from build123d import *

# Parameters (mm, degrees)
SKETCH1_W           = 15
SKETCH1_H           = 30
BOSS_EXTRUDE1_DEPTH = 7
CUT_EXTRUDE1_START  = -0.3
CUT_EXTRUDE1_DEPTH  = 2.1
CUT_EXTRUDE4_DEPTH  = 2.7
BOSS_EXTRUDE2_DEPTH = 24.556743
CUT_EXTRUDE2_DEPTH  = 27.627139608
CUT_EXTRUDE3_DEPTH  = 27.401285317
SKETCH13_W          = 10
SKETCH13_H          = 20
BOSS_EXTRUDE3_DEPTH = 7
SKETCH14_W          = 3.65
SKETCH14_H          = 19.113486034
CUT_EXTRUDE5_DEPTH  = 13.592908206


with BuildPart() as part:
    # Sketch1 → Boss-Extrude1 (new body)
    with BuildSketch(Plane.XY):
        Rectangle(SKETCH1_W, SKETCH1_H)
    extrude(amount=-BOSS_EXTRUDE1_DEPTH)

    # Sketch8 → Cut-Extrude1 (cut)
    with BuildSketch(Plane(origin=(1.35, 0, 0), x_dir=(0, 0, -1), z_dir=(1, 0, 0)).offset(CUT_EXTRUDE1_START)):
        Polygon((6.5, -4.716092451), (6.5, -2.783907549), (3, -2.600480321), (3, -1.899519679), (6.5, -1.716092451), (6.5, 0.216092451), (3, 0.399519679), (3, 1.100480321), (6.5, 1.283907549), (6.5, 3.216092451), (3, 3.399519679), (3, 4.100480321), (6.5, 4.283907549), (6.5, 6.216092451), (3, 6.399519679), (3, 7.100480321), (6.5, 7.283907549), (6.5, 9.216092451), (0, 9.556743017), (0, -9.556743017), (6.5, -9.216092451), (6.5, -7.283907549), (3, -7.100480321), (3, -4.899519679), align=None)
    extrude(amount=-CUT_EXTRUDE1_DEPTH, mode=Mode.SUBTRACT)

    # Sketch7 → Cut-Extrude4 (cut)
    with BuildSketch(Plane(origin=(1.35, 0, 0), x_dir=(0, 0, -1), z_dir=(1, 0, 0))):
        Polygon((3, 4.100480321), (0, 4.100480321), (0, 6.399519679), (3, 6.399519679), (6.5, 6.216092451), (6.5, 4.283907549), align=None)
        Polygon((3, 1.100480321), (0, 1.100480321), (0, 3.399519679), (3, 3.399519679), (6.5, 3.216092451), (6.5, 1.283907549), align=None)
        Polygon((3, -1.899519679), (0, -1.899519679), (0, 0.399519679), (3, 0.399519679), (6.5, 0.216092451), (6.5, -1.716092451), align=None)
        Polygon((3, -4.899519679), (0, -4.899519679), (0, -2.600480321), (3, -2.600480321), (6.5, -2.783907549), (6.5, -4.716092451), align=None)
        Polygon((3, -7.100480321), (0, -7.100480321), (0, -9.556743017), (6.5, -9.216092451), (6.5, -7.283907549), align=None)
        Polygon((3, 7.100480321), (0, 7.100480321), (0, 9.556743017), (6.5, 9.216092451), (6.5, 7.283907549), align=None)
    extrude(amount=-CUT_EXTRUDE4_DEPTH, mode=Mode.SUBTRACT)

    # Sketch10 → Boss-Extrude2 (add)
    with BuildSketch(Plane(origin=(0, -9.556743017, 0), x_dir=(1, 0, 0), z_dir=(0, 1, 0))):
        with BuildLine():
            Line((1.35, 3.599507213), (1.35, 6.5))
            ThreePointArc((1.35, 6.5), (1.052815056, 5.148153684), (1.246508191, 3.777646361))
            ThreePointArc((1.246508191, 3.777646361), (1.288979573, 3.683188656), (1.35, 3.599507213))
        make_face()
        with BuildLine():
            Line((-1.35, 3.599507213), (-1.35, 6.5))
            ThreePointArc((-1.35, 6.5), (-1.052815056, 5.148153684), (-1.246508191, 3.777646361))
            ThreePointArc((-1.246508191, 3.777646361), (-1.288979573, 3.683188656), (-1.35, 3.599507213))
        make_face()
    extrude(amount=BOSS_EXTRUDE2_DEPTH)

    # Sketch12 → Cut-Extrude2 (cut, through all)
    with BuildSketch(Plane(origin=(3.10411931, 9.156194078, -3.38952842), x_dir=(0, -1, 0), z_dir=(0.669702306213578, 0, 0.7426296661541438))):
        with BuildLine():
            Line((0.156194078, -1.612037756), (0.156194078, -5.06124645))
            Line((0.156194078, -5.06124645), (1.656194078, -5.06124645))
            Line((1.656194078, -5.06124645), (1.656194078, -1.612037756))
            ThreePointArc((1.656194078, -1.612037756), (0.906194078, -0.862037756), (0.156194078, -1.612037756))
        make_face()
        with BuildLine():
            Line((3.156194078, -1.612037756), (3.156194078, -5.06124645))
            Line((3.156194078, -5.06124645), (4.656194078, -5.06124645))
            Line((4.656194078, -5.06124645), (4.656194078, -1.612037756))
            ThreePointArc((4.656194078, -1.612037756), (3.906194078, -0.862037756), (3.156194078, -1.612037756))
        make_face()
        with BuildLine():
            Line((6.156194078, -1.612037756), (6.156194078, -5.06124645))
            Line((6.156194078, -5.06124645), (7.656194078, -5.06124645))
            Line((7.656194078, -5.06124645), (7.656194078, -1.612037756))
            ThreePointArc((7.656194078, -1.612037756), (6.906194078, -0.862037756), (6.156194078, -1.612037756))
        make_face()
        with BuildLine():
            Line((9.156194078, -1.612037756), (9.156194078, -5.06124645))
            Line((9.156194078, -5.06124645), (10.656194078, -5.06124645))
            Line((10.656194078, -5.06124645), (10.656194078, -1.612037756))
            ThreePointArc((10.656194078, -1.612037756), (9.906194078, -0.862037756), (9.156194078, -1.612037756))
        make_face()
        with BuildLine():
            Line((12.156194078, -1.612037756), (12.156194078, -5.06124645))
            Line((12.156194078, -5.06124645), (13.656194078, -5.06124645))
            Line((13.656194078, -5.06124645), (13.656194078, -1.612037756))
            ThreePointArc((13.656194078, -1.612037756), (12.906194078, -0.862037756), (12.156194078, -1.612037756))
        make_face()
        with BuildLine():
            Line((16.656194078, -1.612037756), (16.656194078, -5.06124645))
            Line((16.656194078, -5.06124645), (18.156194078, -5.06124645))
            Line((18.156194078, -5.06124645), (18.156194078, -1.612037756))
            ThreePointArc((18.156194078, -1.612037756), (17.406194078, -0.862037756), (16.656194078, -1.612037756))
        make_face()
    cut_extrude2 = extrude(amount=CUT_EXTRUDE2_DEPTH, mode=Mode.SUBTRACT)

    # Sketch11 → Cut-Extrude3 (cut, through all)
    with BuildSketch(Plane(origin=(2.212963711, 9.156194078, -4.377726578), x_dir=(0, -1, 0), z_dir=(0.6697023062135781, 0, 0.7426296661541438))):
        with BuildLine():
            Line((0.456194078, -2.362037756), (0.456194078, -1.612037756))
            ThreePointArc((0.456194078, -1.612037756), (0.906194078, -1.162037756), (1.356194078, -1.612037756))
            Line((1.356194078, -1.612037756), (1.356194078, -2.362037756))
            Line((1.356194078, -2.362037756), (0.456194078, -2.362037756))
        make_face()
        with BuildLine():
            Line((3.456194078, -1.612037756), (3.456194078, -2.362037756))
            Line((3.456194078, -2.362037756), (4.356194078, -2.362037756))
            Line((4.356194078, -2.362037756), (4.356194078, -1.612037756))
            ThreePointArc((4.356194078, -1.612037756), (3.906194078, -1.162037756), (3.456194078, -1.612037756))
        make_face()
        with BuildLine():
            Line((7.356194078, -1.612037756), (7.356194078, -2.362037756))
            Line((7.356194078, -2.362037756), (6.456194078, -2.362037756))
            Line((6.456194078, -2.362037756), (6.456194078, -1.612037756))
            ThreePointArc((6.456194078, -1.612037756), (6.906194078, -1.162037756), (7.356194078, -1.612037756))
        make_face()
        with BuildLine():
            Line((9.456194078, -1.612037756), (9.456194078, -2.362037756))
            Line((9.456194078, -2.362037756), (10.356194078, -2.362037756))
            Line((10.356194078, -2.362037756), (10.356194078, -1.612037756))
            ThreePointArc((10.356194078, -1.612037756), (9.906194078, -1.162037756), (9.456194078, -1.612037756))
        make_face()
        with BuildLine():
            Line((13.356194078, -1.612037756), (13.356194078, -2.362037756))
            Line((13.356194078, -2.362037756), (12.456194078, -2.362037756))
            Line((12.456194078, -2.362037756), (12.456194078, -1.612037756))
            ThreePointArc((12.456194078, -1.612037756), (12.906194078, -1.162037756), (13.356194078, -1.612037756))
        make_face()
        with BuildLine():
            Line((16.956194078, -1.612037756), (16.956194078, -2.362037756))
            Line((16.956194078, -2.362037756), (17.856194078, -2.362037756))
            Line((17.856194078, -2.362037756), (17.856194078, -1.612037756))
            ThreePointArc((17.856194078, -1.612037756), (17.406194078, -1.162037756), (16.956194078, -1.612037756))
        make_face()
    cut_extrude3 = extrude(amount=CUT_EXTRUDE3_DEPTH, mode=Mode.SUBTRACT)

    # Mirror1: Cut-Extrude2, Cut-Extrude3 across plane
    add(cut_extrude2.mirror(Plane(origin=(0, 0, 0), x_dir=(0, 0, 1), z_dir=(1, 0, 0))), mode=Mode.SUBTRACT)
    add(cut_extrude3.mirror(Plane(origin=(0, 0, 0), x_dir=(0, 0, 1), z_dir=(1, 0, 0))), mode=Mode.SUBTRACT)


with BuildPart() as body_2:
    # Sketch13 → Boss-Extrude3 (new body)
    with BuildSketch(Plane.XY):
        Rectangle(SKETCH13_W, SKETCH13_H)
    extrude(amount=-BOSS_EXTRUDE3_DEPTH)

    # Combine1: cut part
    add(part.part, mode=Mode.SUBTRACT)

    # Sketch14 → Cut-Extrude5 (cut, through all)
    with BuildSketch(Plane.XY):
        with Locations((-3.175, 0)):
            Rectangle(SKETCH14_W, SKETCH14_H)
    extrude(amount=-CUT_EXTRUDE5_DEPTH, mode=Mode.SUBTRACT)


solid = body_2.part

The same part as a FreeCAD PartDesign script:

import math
import FreeCAD as App
import Part
import Sketcher

V = App.Vector
Q = App.Units.Quantity


def add_polygon(sketch, points):
    """Adds a closed chain of lines whose ends are joined by coincident constraints."""
    first, n = sketch.GeometryCount, len(points)
    for a, b in zip(points, points[1:] + points[:1]):
        sketch.addGeometry(Part.LineSegment(App.Vector(*a, 0), App.Vector(*b, 0)), False)
    for i in range(n):
        sketch.addConstraint(Sketcher.Constraint("Coincident", first + i, 2, first + (i + 1) % n, 1))

doc = App.newDocument("Part")
body = doc.addObject("PartDesign::Body", "Body")

sketch1 = body.newObject("Sketcher::SketchObject", "Sketch")
sketch1.AttachmentSupport = (doc.getObject("XY_Plane"), [""])
sketch1.MapMode = "FlatFace"
add_polygon(sketch1, [(-8, 15), (-8, -15), (8, -15), (8, 15)])
sketch1.addConstraint(Sketcher.Constraint("Vertical", 0))
sketch1.addConstraint(Sketcher.Constraint("Horizontal", 1))
sketch1.addConstraint(Sketcher.Constraint("Vertical", 2))
sketch1.addConstraint(Sketcher.Constraint("Horizontal", 3))
sketch1.addConstraint(Sketcher.Constraint("Symmetric", 0, 2, 2, 2, -1, 1))
sketch1.addConstraint(Sketcher.Constraint("DistanceX", 1, 1, 1, 2, Q("15 mm")))
sketch1.addConstraint(Sketcher.Constraint("DistanceY", 0, 2, 0, 1, Q("30 mm")))
pad1 = body.newObject("PartDesign::Pad", "Pad")
pad1.Profile = sketch1
pad1.Length = 7
pad1.Reversed = True

sketch2 = body.newObject("Sketcher::SketchObject", "Sketch001")
sketch2.AttachmentSupport = (doc.getObject("YZ_Plane"), [""])
sketch2.MapMode = "FlatFace"
sketch2.AttachmentOffset = App.Placement(V(0, 0, 1.05), App.Rotation())
add_polygon(sketch2, [(-4.7, -6.5), (-2.8, -6.5), (-2.6, -3), (-1.9, -3), (-1.7, -6.5), (0.2, -6.5), (0.4, -3), (1.1, -3), (1.3, -6.5), (3.2, -6.5), (3.4, -3), (4.1, -3), (4.3, -6.5), (6.2, -6.5), (6.4, -3), (7.1, -3), (7.3, -6.5), (9.2, -6.5), (9.6, 0), (-9.6, 0), (-9.2, -6.5), (-7.3, -6.5), (-7.1, -3), (-4.9, -3)])
sketch2.addConstraint(Sketcher.Constraint("Horizontal", 0))
sketch2.addConstraint(Sketcher.Constraint("Horizontal", 2))
sketch2.addConstraint(Sketcher.Constraint("Horizontal", 4))
sketch2.addConstraint(Sketcher.Constraint("Horizontal", 6))
sketch2.addConstraint(Sketcher.Constraint("Horizontal", 8))
sketch2.addConstraint(Sketcher.Constraint("Horizontal", 10))
sketch2.addConstraint(Sketcher.Constraint("Horizontal", 12))
sketch2.addConstraint(Sketcher.Constraint("Horizontal", 14))
sketch2.addConstraint(Sketcher.Constraint("Horizontal", 16))
sketch2.addConstraint(Sketcher.Constraint("Horizontal", 18))
sketch2.addConstraint(Sketcher.Constraint("Horizontal", 20))
sketch2.addConstraint(Sketcher.Constraint("Horizontal", 22))
sketch2.addConstraint(Sketcher.Constraint("Symmetric", 17, 2, 18, 2, -1, 1))
sketch2.addConstraint(Sketcher.Constraint("Symmetric", 16, 2, 19, 2, -2))
sketch2.addConstraint(Sketcher.Constraint("Symmetric", 14, 2, 21, 2, -2))
sketch2.addConstraint(Sketcher.Constraint("Parallel", 1, 5))
sketch2.addConstraint(Sketcher.Constraint("Parallel", 3, 7))
sketch2.addConstraint(Sketcher.Constraint("Parallel", 5, 9))
sketch2.addConstraint(Sketcher.Constraint("Parallel", 7, 11))
sketch2.addConstraint(Sketcher.Constraint("Parallel", 9, 13))
sketch2.addConstraint(Sketcher.Constraint("Parallel", 11, 15))
sketch2.addConstraint(Sketcher.Constraint("Parallel", 13, 17))
sketch2.addConstraint(Sketcher.Constraint("Parallel", 15, 19))
sketch2.addConstraint(Sketcher.Constraint("Parallel", 17, 21))
sketch2.addConstraint(Sketcher.Constraint("Parallel", 19, 23))
sketch2.addConstraint(Sketcher.Constraint("Horizontal", 0, 2, 3, 2))
sketch2.addConstraint(Sketcher.Constraint("Horizontal", 2, 2, 5, 2))
sketch2.addConstraint(Sketcher.Constraint("Horizontal", 4, 2, 7, 2))
sketch2.addConstraint(Sketcher.Constraint("Horizontal", 6, 2, 9, 2))
sketch2.addConstraint(Sketcher.Constraint("Horizontal", 8, 2, 11, 2))
sketch2.addConstraint(Sketcher.Constraint("Horizontal", 10, 2, 13, 2))
sketch2.addConstraint(Sketcher.Constraint("Horizontal", 12, 2, 15, 2))
sketch2.addConstraint(Sketcher.Constraint("Equal", 0, 4))
sketch2.addConstraint(Sketcher.Constraint("Equal", 2, 6))
sketch2.addConstraint(Sketcher.Constraint("Equal", 4, 8))
sketch2.addConstraint(Sketcher.Constraint("Equal", 6, 10))
sketch2.addConstraint(Sketcher.Constraint("Equal", 8, 12))
sketch2.addConstraint(Sketcher.Constraint("Equal", 10, 14))
sketch2.addConstraint(Sketcher.Constraint("Equal", 12, 16))
sketch2.addConstraint(Sketcher.Constraint("Angle", 1, Q("87 deg")))
sketch2.addConstraint(Sketcher.Constraint("DistanceY", 1, 2, -1, 1, Q("3 mm")))
sketch2.addConstraint(Sketcher.Constraint("DistanceX", 0, 2, 4, 2, Q("3 mm")))
sketch2.addConstraint(Sketcher.Constraint("DistanceY", 0, 2, -1, 1, Q("6.5 mm")))
sketch2.addConstraint(Sketcher.Constraint("DistanceX", 19, 2, 3, 2, Q("7.5 mm")))
sketch2.addConstraint(Sketcher.Constraint("DistanceX", 2, 1, 2, 2, Q("0.700961 mm")))
pocket1 = body.newObject("PartDesign::Pocket", "Pocket")
pocket1.Profile = sketch2
pocket1.Length = 2.1

sketch3 = body.newObject("Sketcher::SketchObject", "Sketch002")
sketch3.AttachmentSupport = (doc.getObject("YZ_Plane"), [""])
sketch3.MapMode = "FlatFace"
sketch3.AttachmentOffset = App.Placement(V(0, 0, 1.35), App.Rotation())
add_polygon(sketch3, [(4.1, 0), (4.1, -3), (4.3, -6.5), (6.2, -6.5), (6.4, -3), (6.4, 0)])
add_polygon(sketch3, [(1.1, 0), (1.1, -3), (1.3, -6.5), (3.2, -6.5), (3.4, -3), (3.4, 0)])
add_polygon(sketch3, [(-1.9, 0), (-1.9, -3), (-1.7, -6.5), (0.2, -6.5), (0.4, -3), (0.4, 0)])
add_polygon(sketch3, [(-4.9, 0), (-4.9, -3), (-4.7, -6.5), (-2.8, -6.5), (-2.6, -3), (-2.6, 0)])
add_polygon(sketch3, [(-7.1, -3), (-7.1, 0), (-9.6, 0), (-9.2, -6.5), (-7.3, -6.5)])
add_polygon(sketch3, [(7.1, 0), (7.1, -3), (7.3, -6.5), (9.2, -6.5), (9.6, 0)])
sketch3.addConstraint(Sketcher.Constraint("Vertical", 0))
sketch3.addConstraint(Sketcher.Constraint("Horizontal", 2))
sketch3.addConstraint(Sketcher.Constraint("Vertical", 4))
sketch3.addConstraint(Sketcher.Constraint("Horizontal", 5))
sketch3.addConstraint(Sketcher.Constraint("Vertical", 6))
sketch3.addConstraint(Sketcher.Constraint("Horizontal", 8))
sketch3.addConstraint(Sketcher.Constraint("Vertical", 10))
sketch3.addConstraint(Sketcher.Constraint("Horizontal", 11))
sketch3.addConstraint(Sketcher.Constraint("Vertical", 12))
sketch3.addConstraint(Sketcher.Constraint("Horizontal", 14))
sketch3.addConstraint(Sketcher.Constraint("Vertical", 16))
sketch3.addConstraint(Sketcher.Constraint("Horizontal", 17))
sketch3.addConstraint(Sketcher.Constraint("Vertical", 18))
sketch3.addConstraint(Sketcher.Constraint("Horizontal", 20))
sketch3.addConstraint(Sketcher.Constraint("Vertical", 22))
sketch3.addConstraint(Sketcher.Constraint("Horizontal", 23))
sketch3.addConstraint(Sketcher.Constraint("Vertical", 24))
sketch3.addConstraint(Sketcher.Constraint("Horizontal", 25))
sketch3.addConstraint(Sketcher.Constraint("Horizontal", 27))
sketch3.addConstraint(Sketcher.Constraint("Vertical", 29))
sketch3.addConstraint(Sketcher.Constraint("Horizontal", 31))
sketch3.addConstraint(Sketcher.Constraint("Horizontal", 33))
sketch3.addConstraint(Sketcher.Constraint("Symmetric", 25, 2, 32, 2, -1, 1))
sketch3.addConstraint(Sketcher.Constraint("Symmetric", 28, 2, 29, 2, -2))
sketch3.addConstraint(Sketcher.Constraint("Symmetric", 27, 2, 30, 2, -2))
sketch3.addConstraint(Sketcher.Constraint("PointOnObject", 4, 2, -1))
sketch3.addConstraint(Sketcher.Constraint("PointOnObject", 10, 2, -1))
sketch3.addConstraint(Sketcher.Constraint("PointOnObject", 16, 2, -1))
sketch3.addConstraint(Sketcher.Constraint("PointOnObject", 22, 2, -1))
sketch3.addConstraint(Sketcher.Constraint("PointOnObject", 24, 2, -1))
sketch3.addConstraint(Sketcher.Constraint("Parallel", 1, 7))
sketch3.addConstraint(Sketcher.Constraint("Parallel", 3, 9))
sketch3.addConstraint(Sketcher.Constraint("Parallel", 7, 13))
sketch3.addConstraint(Sketcher.Constraint("Parallel", 9, 15))
sketch3.addConstraint(Sketcher.Constraint("Parallel", 13, 19))
sketch3.addConstraint(Sketcher.Constraint("Parallel", 15, 21))
sketch3.addConstraint(Sketcher.Constraint("Parallel", 19, 26))
sketch3.addConstraint(Sketcher.Constraint("Parallel", 21, 28))
sketch3.addConstraint(Sketcher.Constraint("Parallel", 26, 30))
sketch3.addConstraint(Sketcher.Constraint("Parallel", 28, 32))
sketch3.addConstraint(Sketcher.Constraint("Horizontal", 0, 2, 3, 2))
sketch3.addConstraint(Sketcher.Constraint("Horizontal", 3, 2, 6, 2))
sketch3.addConstraint(Sketcher.Constraint("Horizontal", 2, 2, 7, 2))
sketch3.addConstraint(Sketcher.Constraint("Horizontal", 6, 2, 9, 2))
sketch3.addConstraint(Sketcher.Constraint("Horizontal", 9, 2, 12, 2))
sketch3.addConstraint(Sketcher.Constraint("Horizontal", 8, 2, 13, 2))
sketch3.addConstraint(Sketcher.Constraint("Horizontal", 12, 2, 15, 2))
sketch3.addConstraint(Sketcher.Constraint("Horizontal", 15, 2, 18, 2))
sketch3.addConstraint(Sketcher.Constraint("Horizontal", 14, 2, 19, 2))
sketch3.addConstraint(Sketcher.Constraint("Horizontal", 18, 2, 21, 2))
sketch3.addConstraint(Sketcher.Constraint("Horizontal", 20, 2, 26, 2))
sketch3.addConstraint(Sketcher.Constraint("Horizontal", 21, 2, 28, 2))
sketch3.addConstraint(Sketcher.Constraint("Equal", 2, 8))
sketch3.addConstraint(Sketcher.Constraint("Equal", 8, 14))
sketch3.addConstraint(Sketcher.Constraint("Equal", 14, 20))
sketch3.addConstraint(Sketcher.Constraint("Equal", 20, 27))
sketch3.addConstraint(Sketcher.Constraint("DistanceY", 0, 2, 0, 1, Q("3 mm")))
sketch3.addConstraint(Sketcher.Constraint("Angle", 1, Q("-87 deg")))
sketch3.addConstraint(Sketcher.Constraint("DistanceX", 6, 2, 0, 2, Q("3 mm")))
sketch3.addConstraint(Sketcher.Constraint("DistanceX", 12, 2, 6, 2, Q("3 mm")))
sketch3.addConstraint(Sketcher.Constraint("DistanceX", 18, 2, 12, 2, Q("3 mm")))
sketch3.addConstraint(Sketcher.Constraint("DistanceX", 0, 2, 29, 2, Q("3 mm")))
sketch3.addConstraint(Sketcher.Constraint("DistanceY", 1, 2, -1, 1, Q("6.5 mm")))
sketch3.addConstraint(Sketcher.Constraint("DistanceX", 24, 2, 22, 2, Q("4.5 mm")))
sketch3.addConstraint(Sketcher.Constraint("DistanceX", 5, 2, 5, 1, Q("2.299039 mm")))
pocket2 = body.newObject("PartDesign::Pocket", "Pocket001")
pocket2.Profile = sketch3
pocket2.Length = 2.7

sketch4 = body.newObject("Sketcher::SketchObject", "Sketch003")
sketch4.AttachmentSupport = (doc.getObject("XZ_Plane"), [""])
sketch4.MapMode = "FlatFace"
sketch4.AttachmentOffset = App.Placement(V(0, 0, 9.556743), App.Rotation())
sketch4.addGeometry(Part.LineSegment(V(1.35, -3.6, 0), V(1.35, -6.5, 0)), False)
sketch4.addGeometry(Part.ArcOfCircle(Part.Circle(V(4.95, -5, 0), V(0, 0, 1), 3.9), math.radians(162), math.radians(203)), False)
sketch4.addGeometry(Part.ArcOfCircle(Part.Circle(V(1.72, -3.93, 0), V(0, 0, 1), 0.5), math.radians(138), math.radians(162)), False)
sketch4.addGeometry(Part.LineSegment(V(-1.35, -6.5, 0), V(-1.35, -3.6, 0)), False)
sketch4.addGeometry(Part.ArcOfCircle(Part.Circle(V(-1.72, -3.93, 0), V(0, 0, 1), 0.5), math.radians(18), math.radians(42)), False)
sketch4.addGeometry(Part.ArcOfCircle(Part.Circle(V(-4.95, -5, 0), V(0, 0, 1), 3.9), math.radians(-23), math.radians(18)), False)
sketch4.addConstraint(Sketcher.Constraint("Coincident", 0, 2, 1, 2))
sketch4.addConstraint(Sketcher.Constraint("Tangent", 1, 1, 2, 2))
sketch4.addConstraint(Sketcher.Constraint("Coincident", 2, 1, 0, 1))
sketch4.addConstraint(Sketcher.Constraint("Coincident", 3, 2, 4, 2))
sketch4.addConstraint(Sketcher.Constraint("Tangent", 4, 1, 5, 2))
sketch4.addConstraint(Sketcher.Constraint("Coincident", 5, 1, 3, 1))
sketch4.addConstraint(Sketcher.Constraint("Vertical", 0))
sketch4.addConstraint(Sketcher.Constraint("Vertical", 3))
sketch4.addConstraint(Sketcher.Constraint("Equal", 2, 4))
sketch4.addConstraint(Sketcher.Constraint("Equal", 1, 5))
sketch4.addConstraint(Sketcher.Constraint("Symmetric", 2, 3, 4, 3, -2))
sketch4.addConstraint(Sketcher.Constraint("Symmetric", 0, 2, 5, 1, -2))
sketch4.addConstraint(Sketcher.Constraint("Radius", 1, Q("3.9 mm")))
sketch4.addConstraint(Sketcher.Constraint("Radius", 2, Q("0.5 mm")))
sketch4.addConstraint(Sketcher.Constraint("DistanceY", 1, 3, -1, 1, Q("5 mm")))
sketch4.addConstraint(Sketcher.Constraint("DistanceY", 0, 2, -1, 1, Q("6.5 mm")))
sketch4.addConstraint(Sketcher.Constraint("DistanceX", 5, 3, 1, 3, Q("9.9 mm")))
sketch4.addConstraint(Sketcher.Constraint("DistanceY", 0, 2, 0, 1, Q("2.900493 mm")))
pad2 = body.newObject("PartDesign::Pad", "Pad001")
pad2.Profile = sketch4
pad2.Length = 24.556743
pad2.Reversed = True

sketch5 = body.newObject("Sketcher::SketchObject", "Sketch004")
sketch5.Placement = App.Placement(V(3.104119, 9.156194, -3.389528), App.Rotation(V(0, -1, 0), V(0.742629666, 0, -0.669702306), V(0.669702306, 0, 0.742629666), "ZXY"))
sketch5.addGeometry(Part.LineSegment(V(0.2, -1.6, 0), V(0.2, -5.1, 0)), False)
sketch5.addGeometry(Part.LineSegment(V(0.2, -5.1, 0), V(1.7, -5.1, 0)), False)
sketch5.addGeometry(Part.LineSegment(V(1.7, -5.1, 0), V(1.7, -1.6, 0)), False)
sketch5.addGeometry(Part.ArcOfCircle(Part.Circle(V(0.9, -1.6, 0), V(0, 0, 1), 0.8), math.radians(0), math.radians(180)), False)
sketch5.addGeometry(Part.LineSegment(V(3.2, -1.6, 0), V(3.2, -5.1, 0)), False)
sketch5.addGeometry(Part.LineSegment(V(3.2, -5.1, 0), V(4.7, -5.1, 0)), False)
sketch5.addGeometry(Part.LineSegment(V(4.7, -5.1, 0), V(4.7, -1.6, 0)), False)
sketch5.addGeometry(Part.ArcOfCircle(Part.Circle(V(3.9, -1.6, 0), V(0, 0, 1), 0.8), math.radians(0), math.radians(180)), False)
sketch5.addGeometry(Part.LineSegment(V(6.2, -1.6, 0), V(6.2, -5.1, 0)), False)
sketch5.addGeometry(Part.LineSegment(V(6.2, -5.1, 0), V(7.7, -5.1, 0)), False)
sketch5.addGeometry(Part.LineSegment(V(7.7, -5.1, 0), V(7.7, -1.6, 0)), False)
sketch5.addGeometry(Part.ArcOfCircle(Part.Circle(V(6.9, -1.6, 0), V(0, 0, 1), 0.8), math.radians(0), math.radians(180)), False)
sketch5.addGeometry(Part.LineSegment(V(9.2, -1.6, 0), V(9.2, -5.1, 0)), False)
sketch5.addGeometry(Part.LineSegment(V(9.2, -5.1, 0), V(10.7, -5.1, 0)), False)
sketch5.addGeometry(Part.LineSegment(V(10.7, -5.1, 0), V(10.7, -1.6, 0)), False)
sketch5.addGeometry(Part.ArcOfCircle(Part.Circle(V(9.9, -1.6, 0), V(0, 0, 1), 0.8), math.radians(0), math.radians(180)), False)
sketch5.addGeometry(Part.LineSegment(V(12.2, -1.6, 0), V(12.2, -5.1, 0)), False)
sketch5.addGeometry(Part.LineSegment(V(12.2, -5.1, 0), V(13.7, -5.1, 0)), False)
sketch5.addGeometry(Part.LineSegment(V(13.7, -5.1, 0), V(13.7, -1.6, 0)), False)
sketch5.addGeometry(Part.ArcOfCircle(Part.Circle(V(12.9, -1.6, 0), V(0, 0, 1), 0.8), math.radians(0), math.radians(180)), False)
sketch5.addGeometry(Part.LineSegment(V(16.7, -1.6, 0), V(16.7, -5.1, 0)), False)
sketch5.addGeometry(Part.LineSegment(V(16.7, -5.1, 0), V(18.2, -5.1, 0)), False)
sketch5.addGeometry(Part.LineSegment(V(18.2, -5.1, 0), V(18.2, -1.6, 0)), False)
sketch5.addGeometry(Part.ArcOfCircle(Part.Circle(V(17.4, -1.6, 0), V(0, 0, 1), 0.8), math.radians(0), math.radians(180)), False)
sketch5.addConstraint(Sketcher.Constraint("Coincident", 0, 2, 1, 1))
sketch5.addConstraint(Sketcher.Constraint("Coincident", 1, 2, 2, 1))
sketch5.addConstraint(Sketcher.Constraint("Tangent", 2, 2, 3, 1))
sketch5.addConstraint(Sketcher.Constraint("Tangent", 3, 2, 0, 1))
sketch5.addConstraint(Sketcher.Constraint("Coincident", 4, 2, 5, 1))
sketch5.addConstraint(Sketcher.Constraint("Coincident", 5, 2, 6, 1))
sketch5.addConstraint(Sketcher.Constraint("Tangent", 6, 2, 7, 1))
sketch5.addConstraint(Sketcher.Constraint("Tangent", 7, 2, 4, 1))
sketch5.addConstraint(Sketcher.Constraint("Coincident", 8, 2, 9, 1))
sketch5.addConstraint(Sketcher.Constraint("Coincident", 9, 2, 10, 1))
sketch5.addConstraint(Sketcher.Constraint("Tangent", 10, 2, 11, 1))
sketch5.addConstraint(Sketcher.Constraint("Tangent", 11, 2, 8, 1))
sketch5.addConstraint(Sketcher.Constraint("Coincident", 12, 2, 13, 1))
sketch5.addConstraint(Sketcher.Constraint("Coincident", 13, 2, 14, 1))
sketch5.addConstraint(Sketcher.Constraint("Tangent", 14, 2, 15, 1))
sketch5.addConstraint(Sketcher.Constraint("Tangent", 15, 2, 12, 1))
sketch5.addConstraint(Sketcher.Constraint("Coincident", 16, 2, 17, 1))
sketch5.addConstraint(Sketcher.Constraint("Coincident", 17, 2, 18, 1))
sketch5.addConstraint(Sketcher.Constraint("Tangent", 18, 2, 19, 1))
sketch5.addConstraint(Sketcher.Constraint("Tangent", 19, 2, 16, 1))
sketch5.addConstraint(Sketcher.Constraint("Coincident", 20, 2, 21, 1))
sketch5.addConstraint(Sketcher.Constraint("Coincident", 21, 2, 22, 1))
sketch5.addConstraint(Sketcher.Constraint("Tangent", 22, 2, 23, 1))
sketch5.addConstraint(Sketcher.Constraint("Tangent", 23, 2, 20, 1))
sketch5.addConstraint(Sketcher.Constraint("Vertical", 0))
sketch5.addConstraint(Sketcher.Constraint("Horizontal", 1))
sketch5.addConstraint(Sketcher.Constraint("Vertical", 2))
sketch5.addConstraint(Sketcher.Constraint("Vertical", 4))
sketch5.addConstraint(Sketcher.Constraint("Horizontal", 5))
sketch5.addConstraint(Sketcher.Constraint("Vertical", 6))
sketch5.addConstraint(Sketcher.Constraint("Vertical", 8))
sketch5.addConstraint(Sketcher.Constraint("Horizontal", 9))
sketch5.addConstraint(Sketcher.Constraint("Vertical", 10))
sketch5.addConstraint(Sketcher.Constraint("Vertical", 12))
sketch5.addConstraint(Sketcher.Constraint("Horizontal", 13))
sketch5.addConstraint(Sketcher.Constraint("Vertical", 14))
sketch5.addConstraint(Sketcher.Constraint("Vertical", 16))
sketch5.addConstraint(Sketcher.Constraint("Horizontal", 17))
sketch5.addConstraint(Sketcher.Constraint("Vertical", 18))
sketch5.addConstraint(Sketcher.Constraint("Vertical", 20))
sketch5.addConstraint(Sketcher.Constraint("Horizontal", 21))
sketch5.addConstraint(Sketcher.Constraint("Vertical", 22))
sketch5.addConstraint(Sketcher.Constraint("Equal", 3, 7))
sketch5.addConstraint(Sketcher.Constraint("Equal", 7, 11))
sketch5.addConstraint(Sketcher.Constraint("Equal", 11, 15))
sketch5.addConstraint(Sketcher.Constraint("Equal", 15, 19))
sketch5.addConstraint(Sketcher.Constraint("Equal", 19, 23))
sketch5.addConstraint(Sketcher.Constraint("Horizontal", 3, 3, 7, 3))
sketch5.addConstraint(Sketcher.Constraint("Horizontal", 7, 3, 11, 3))
sketch5.addConstraint(Sketcher.Constraint("Horizontal", 11, 3, 15, 3))
sketch5.addConstraint(Sketcher.Constraint("Horizontal", 15, 3, 19, 3))
sketch5.addConstraint(Sketcher.Constraint("Horizontal", 19, 3, 23, 3))
sketch5.addConstraint(Sketcher.Constraint("Horizontal", 1, 2, 4, 2))
sketch5.addConstraint(Sketcher.Constraint("Horizontal", 5, 2, 8, 2))
sketch5.addConstraint(Sketcher.Constraint("Horizontal", 9, 2, 12, 2))
sketch5.addConstraint(Sketcher.Constraint("Horizontal", 13, 2, 16, 2))
sketch5.addConstraint(Sketcher.Constraint("Horizontal", 17, 2, 20, 2))
sketch5.addConstraint(Sketcher.Constraint("Radius", 3, Q("0.75 mm")))
sketch5.addConstraint(Sketcher.Constraint("DistanceX", 3, 3, 7, 3, Q("3 mm")))
sketch5.addConstraint(Sketcher.Constraint("DistanceX", 7, 3, 11, 3, Q("3 mm")))
sketch5.addConstraint(Sketcher.Constraint("DistanceX", 11, 3, 15, 3, Q("3 mm")))
sketch5.addConstraint(Sketcher.Constraint("DistanceX", 15, 3, 19, 3, Q("3 mm")))
sketch5.addConstraint(Sketcher.Constraint("DistanceX", 17, 2, 20, 2, Q("3 mm")))
sketch5.addConstraint(Sketcher.Constraint("DistanceY", 0, 2, 0, 1, Q("3.449209 mm")))
sketch5.addConstraint(Sketcher.Constraint("DistanceX", -1, 1, 3, 3, Q("0.906194 mm")))
sketch5.addConstraint(Sketcher.Constraint("DistanceY", 3, 3, -1, 1, Q("1.612038 mm")))
pocket3 = body.newObject("PartDesign::Pocket", "Pocket002")
pocket3.Profile = sketch5
pocket3.Type = "ThroughAll"
pocket3.Reversed = True

sketch6 = body.newObject("Sketcher::SketchObject", "Sketch005")
sketch6.Placement = App.Placement(V(2.212964, 9.156194, -4.377727), App.Rotation(V(0, -1, 0), V(0.742629666, 0, -0.669702306), V(0.669702306, 0, 0.742629666), "ZXY"))
sketch6.addGeometry(Part.LineSegment(V(0.46, -1.61, 0), V(0.46, -2.36, 0)), False)
sketch6.addGeometry(Part.LineSegment(V(0.46, -2.36, 0), V(1.36, -2.36, 0)), False)
sketch6.addGeometry(Part.LineSegment(V(1.36, -2.36, 0), V(1.36, -1.61, 0)), False)
sketch6.addGeometry(Part.ArcOfCircle(Part.Circle(V(0.91, -1.61, 0), V(0, 0, 1), 0.45), math.radians(0), math.radians(180)), False)
sketch6.addGeometry(Part.LineSegment(V(3.46, -1.61, 0), V(3.46, -2.36, 0)), False)
sketch6.addGeometry(Part.LineSegment(V(3.46, -2.36, 0), V(4.36, -2.36, 0)), False)
sketch6.addGeometry(Part.LineSegment(V(4.36, -2.36, 0), V(4.36, -1.61, 0)), False)
sketch6.addGeometry(Part.ArcOfCircle(Part.Circle(V(3.91, -1.61, 0), V(0, 0, 1), 0.45), math.radians(0), math.radians(180)), False)
sketch6.addGeometry(Part.LineSegment(V(7.36, -2.36, 0), V(7.36, -1.61, 0)), False)
sketch6.addGeometry(Part.ArcOfCircle(Part.Circle(V(6.91, -1.61, 0), V(0, 0, 1), 0.45), math.radians(0), math.radians(180)), False)
sketch6.addGeometry(Part.LineSegment(V(6.46, -1.61, 0), V(6.46, -2.36, 0)), False)
sketch6.addGeometry(Part.LineSegment(V(6.46, -2.36, 0), V(7.36, -2.36, 0)), False)
sketch6.addGeometry(Part.LineSegment(V(9.46, -1.61, 0), V(9.46, -2.36, 0)), False)
sketch6.addGeometry(Part.LineSegment(V(9.46, -2.36, 0), V(10.36, -2.36, 0)), False)
sketch6.addGeometry(Part.LineSegment(V(10.36, -2.36, 0), V(10.36, -1.61, 0)), False)
sketch6.addGeometry(Part.ArcOfCircle(Part.Circle(V(9.91, -1.61, 0), V(0, 0, 1), 0.45), math.radians(0), math.radians(180)), False)
sketch6.addGeometry(Part.LineSegment(V(13.36, -2.36, 0), V(13.36, -1.61, 0)), False)
sketch6.addGeometry(Part.ArcOfCircle(Part.Circle(V(12.91, -1.61, 0), V(0, 0, 1), 0.45), math.radians(0), math.radians(180)), False)
sketch6.addGeometry(Part.LineSegment(V(12.46, -1.61, 0), V(12.46, -2.36, 0)), False)
sketch6.addGeometry(Part.LineSegment(V(12.46, -2.36, 0), V(13.36, -2.36, 0)), False)
sketch6.addGeometry(Part.LineSegment(V(16.96, -1.61, 0), V(16.96, -2.36, 0)), False)
sketch6.addGeometry(Part.LineSegment(V(16.96, -2.36, 0), V(17.86, -2.36, 0)), False)
sketch6.addGeometry(Part.LineSegment(V(17.86, -2.36, 0), V(17.86, -1.61, 0)), False)
sketch6.addGeometry(Part.ArcOfCircle(Part.Circle(V(17.41, -1.61, 0), V(0, 0, 1), 0.45), math.radians(0), math.radians(180)), False)
sketch6.addConstraint(Sketcher.Constraint("Coincident", 0, 2, 1, 1))
sketch6.addConstraint(Sketcher.Constraint("Coincident", 1, 2, 2, 1))
sketch6.addConstraint(Sketcher.Constraint("Tangent", 2, 2, 3, 1))
sketch6.addConstraint(Sketcher.Constraint("Tangent", 3, 2, 0, 1))
sketch6.addConstraint(Sketcher.Constraint("Coincident", 4, 2, 5, 1))
sketch6.addConstraint(Sketcher.Constraint("Coincident", 5, 2, 6, 1))
sketch6.addConstraint(Sketcher.Constraint("Tangent", 6, 2, 7, 1))
sketch6.addConstraint(Sketcher.Constraint("Tangent", 7, 2, 4, 1))
sketch6.addConstraint(Sketcher.Constraint("Tangent", 8, 2, 9, 1))
sketch6.addConstraint(Sketcher.Constraint("Tangent", 9, 2, 10, 1))
sketch6.addConstraint(Sketcher.Constraint("Coincident", 10, 2, 11, 1))
sketch6.addConstraint(Sketcher.Constraint("Coincident", 11, 2, 8, 1))
sketch6.addConstraint(Sketcher.Constraint("Coincident", 12, 2, 13, 1))
sketch6.addConstraint(Sketcher.Constraint("Coincident", 13, 2, 14, 1))
sketch6.addConstraint(Sketcher.Constraint("Tangent", 14, 2, 15, 1))
sketch6.addConstraint(Sketcher.Constraint("Tangent", 15, 2, 12, 1))
sketch6.addConstraint(Sketcher.Constraint("Tangent", 16, 2, 17, 1))
sketch6.addConstraint(Sketcher.Constraint("Tangent", 17, 2, 18, 1))
sketch6.addConstraint(Sketcher.Constraint("Coincident", 18, 2, 19, 1))
sketch6.addConstraint(Sketcher.Constraint("Coincident", 19, 2, 16, 1))
sketch6.addConstraint(Sketcher.Constraint("Coincident", 20, 2, 21, 1))
sketch6.addConstraint(Sketcher.Constraint("Coincident", 21, 2, 22, 1))
sketch6.addConstraint(Sketcher.Constraint("Tangent", 22, 2, 23, 1))
sketch6.addConstraint(Sketcher.Constraint("Tangent", 23, 2, 20, 1))
sketch6.addConstraint(Sketcher.Constraint("Vertical", 0))
sketch6.addConstraint(Sketcher.Constraint("Horizontal", 1))
sketch6.addConstraint(Sketcher.Constraint("Vertical", 2))
sketch6.addConstraint(Sketcher.Constraint("Vertical", 4))
sketch6.addConstraint(Sketcher.Constraint("Horizontal", 5))
sketch6.addConstraint(Sketcher.Constraint("Vertical", 6))
sketch6.addConstraint(Sketcher.Constraint("Vertical", 8))
sketch6.addConstraint(Sketcher.Constraint("Vertical", 10))
sketch6.addConstraint(Sketcher.Constraint("Horizontal", 11))
sketch6.addConstraint(Sketcher.Constraint("Vertical", 12))
sketch6.addConstraint(Sketcher.Constraint("Horizontal", 13))
sketch6.addConstraint(Sketcher.Constraint("Vertical", 14))
sketch6.addConstraint(Sketcher.Constraint("Vertical", 16))
sketch6.addConstraint(Sketcher.Constraint("Vertical", 18))
sketch6.addConstraint(Sketcher.Constraint("Horizontal", 19))
sketch6.addConstraint(Sketcher.Constraint("Vertical", 20))
sketch6.addConstraint(Sketcher.Constraint("Horizontal", 21))
sketch6.addConstraint(Sketcher.Constraint("Vertical", 22))
sketch6.addConstraint(Sketcher.Constraint("Equal", 3, 7))
sketch6.addConstraint(Sketcher.Constraint("Equal", 7, 9))
sketch6.addConstraint(Sketcher.Constraint("Equal", 9, 15))
sketch6.addConstraint(Sketcher.Constraint("Equal", 15, 17))
sketch6.addConstraint(Sketcher.Constraint("Equal", 17, 23))
sketch6.addConstraint(Sketcher.Constraint("Horizontal", 3, 3, 7, 3))
sketch6.addConstraint(Sketcher.Constraint("Horizontal", 7, 3, 9, 3))
sketch6.addConstraint(Sketcher.Constraint("Horizontal", 9, 3, 15, 3))
sketch6.addConstraint(Sketcher.Constraint("Horizontal", 15, 3, 17, 3))
sketch6.addConstraint(Sketcher.Constraint("Horizontal", 17, 3, 23, 3))
sketch6.addConstraint(Sketcher.Constraint("Horizontal", 1, 2, 4, 2))
sketch6.addConstraint(Sketcher.Constraint("Horizontal", 5, 2, 10, 2))
sketch6.addConstraint(Sketcher.Constraint("Horizontal", 11, 2, 12, 2))
sketch6.addConstraint(Sketcher.Constraint("Horizontal", 13, 2, 18, 2))
sketch6.addConstraint(Sketcher.Constraint("Horizontal", 19, 2, 20, 2))
sketch6.addConstraint(Sketcher.Constraint("Radius", 3, Q("0.45 mm")))
sketch6.addConstraint(Sketcher.Constraint("DistanceX", 3, 3, 7, 3, Q("3 mm")))
sketch6.addConstraint(Sketcher.Constraint("DistanceX", 7, 3, 9, 3, Q("3 mm")))
sketch6.addConstraint(Sketcher.Constraint("DistanceX", 9, 3, 15, 3, Q("3 mm")))
sketch6.addConstraint(Sketcher.Constraint("DistanceX", 15, 3, 17, 3, Q("3 mm")))
sketch6.addConstraint(Sketcher.Constraint("DistanceY", 0, 2, 0, 1, Q("0.75 mm")))
sketch6.addConstraint(Sketcher.Constraint("DistanceX", 17, 3, 23, 3, Q("4.5 mm")))
sketch6.addConstraint(Sketcher.Constraint("DistanceX", -1, 1, 3, 3, Q("0.906194 mm")))
sketch6.addConstraint(Sketcher.Constraint("DistanceY", 3, 3, -1, 1, Q("1.612038 mm")))
pocket4 = body.newObject("PartDesign::Pocket", "Pocket003")
pocket4.Profile = sketch6
pocket4.Type = "ThroughAll"
pocket4.Reversed = True
doc.recompute()

mirrored = body.newObject("PartDesign::Mirrored", "Mirrored")
mirrored.Originals = [pocket3, pocket4]
mirrored.MirrorPlane = (doc.getObject("YZ_Plane"), [""])
body.Tip = mirrored
body2 = doc.addObject("PartDesign::Body", "Body001")

sketch7 = body2.newObject("Sketcher::SketchObject", "Sketch006")
sketch7.AttachmentSupport = (doc.getObject("XY_Plane001"), [""])
sketch7.MapMode = "FlatFace"
add_polygon(sketch7, [(-5, 10), (-5, -10), (5, -10), (5, 10)])
sketch7.addConstraint(Sketcher.Constraint("Vertical", 0))
sketch7.addConstraint(Sketcher.Constraint("Horizontal", 1))
sketch7.addConstraint(Sketcher.Constraint("Vertical", 2))
sketch7.addConstraint(Sketcher.Constraint("Horizontal", 3))
sketch7.addConstraint(Sketcher.Constraint("Symmetric", 0, 2, 2, 2, -1, 1))
sketch7.addConstraint(Sketcher.Constraint("DistanceX", 1, 1, 1, 2, Q("10 mm")))
sketch7.addConstraint(Sketcher.Constraint("DistanceY", 0, 2, 0, 1, Q("20 mm")))
pad3 = body2.newObject("PartDesign::Pad", "Pad002")
pad3.Profile = sketch7
pad3.Length = 7
pad3.Reversed = True
doc.recompute()

boolean = body2.newObject("PartDesign::Boolean", "Boolean")
boolean.Type = "Cut"
boolean.addObjects([body])

sketch8 = body2.newObject("Sketcher::SketchObject", "Sketch007")
sketch8.AttachmentSupport = (doc.getObject("XY_Plane001"), [""])
sketch8.MapMode = "FlatFace"
add_polygon(sketch8, [(-5, 9.6), (-5, -9.6), (-1.4, -9.6), (-1.4, 9.6)])
sketch8.addConstraint(Sketcher.Constraint("Vertical", 0))
sketch8.addConstraint(Sketcher.Constraint("Horizontal", 1))
sketch8.addConstraint(Sketcher.Constraint("Vertical", 2))
sketch8.addConstraint(Sketcher.Constraint("Horizontal", 3))
sketch8.addConstraint(Sketcher.Constraint("DistanceX", 0, 2, -1, 1, Q("5 mm")))
sketch8.addConstraint(Sketcher.Constraint("DistanceX", 1, 1, 1, 2, Q("3.65 mm")))
sketch8.addConstraint(Sketcher.Constraint("DistanceY", 0, 2, 0, 1, Q("19.113486 mm")))
sketch8.addConstraint(Sketcher.Constraint("DistanceY", 0, 2, -1, 1, Q("9.556743 mm")))
pocket5 = body2.newObject("PartDesign::Pocket", "Pocket004")
pocket5.Profile = sketch8
pocket5.Type = "ThroughAll"

doc.recompute()
